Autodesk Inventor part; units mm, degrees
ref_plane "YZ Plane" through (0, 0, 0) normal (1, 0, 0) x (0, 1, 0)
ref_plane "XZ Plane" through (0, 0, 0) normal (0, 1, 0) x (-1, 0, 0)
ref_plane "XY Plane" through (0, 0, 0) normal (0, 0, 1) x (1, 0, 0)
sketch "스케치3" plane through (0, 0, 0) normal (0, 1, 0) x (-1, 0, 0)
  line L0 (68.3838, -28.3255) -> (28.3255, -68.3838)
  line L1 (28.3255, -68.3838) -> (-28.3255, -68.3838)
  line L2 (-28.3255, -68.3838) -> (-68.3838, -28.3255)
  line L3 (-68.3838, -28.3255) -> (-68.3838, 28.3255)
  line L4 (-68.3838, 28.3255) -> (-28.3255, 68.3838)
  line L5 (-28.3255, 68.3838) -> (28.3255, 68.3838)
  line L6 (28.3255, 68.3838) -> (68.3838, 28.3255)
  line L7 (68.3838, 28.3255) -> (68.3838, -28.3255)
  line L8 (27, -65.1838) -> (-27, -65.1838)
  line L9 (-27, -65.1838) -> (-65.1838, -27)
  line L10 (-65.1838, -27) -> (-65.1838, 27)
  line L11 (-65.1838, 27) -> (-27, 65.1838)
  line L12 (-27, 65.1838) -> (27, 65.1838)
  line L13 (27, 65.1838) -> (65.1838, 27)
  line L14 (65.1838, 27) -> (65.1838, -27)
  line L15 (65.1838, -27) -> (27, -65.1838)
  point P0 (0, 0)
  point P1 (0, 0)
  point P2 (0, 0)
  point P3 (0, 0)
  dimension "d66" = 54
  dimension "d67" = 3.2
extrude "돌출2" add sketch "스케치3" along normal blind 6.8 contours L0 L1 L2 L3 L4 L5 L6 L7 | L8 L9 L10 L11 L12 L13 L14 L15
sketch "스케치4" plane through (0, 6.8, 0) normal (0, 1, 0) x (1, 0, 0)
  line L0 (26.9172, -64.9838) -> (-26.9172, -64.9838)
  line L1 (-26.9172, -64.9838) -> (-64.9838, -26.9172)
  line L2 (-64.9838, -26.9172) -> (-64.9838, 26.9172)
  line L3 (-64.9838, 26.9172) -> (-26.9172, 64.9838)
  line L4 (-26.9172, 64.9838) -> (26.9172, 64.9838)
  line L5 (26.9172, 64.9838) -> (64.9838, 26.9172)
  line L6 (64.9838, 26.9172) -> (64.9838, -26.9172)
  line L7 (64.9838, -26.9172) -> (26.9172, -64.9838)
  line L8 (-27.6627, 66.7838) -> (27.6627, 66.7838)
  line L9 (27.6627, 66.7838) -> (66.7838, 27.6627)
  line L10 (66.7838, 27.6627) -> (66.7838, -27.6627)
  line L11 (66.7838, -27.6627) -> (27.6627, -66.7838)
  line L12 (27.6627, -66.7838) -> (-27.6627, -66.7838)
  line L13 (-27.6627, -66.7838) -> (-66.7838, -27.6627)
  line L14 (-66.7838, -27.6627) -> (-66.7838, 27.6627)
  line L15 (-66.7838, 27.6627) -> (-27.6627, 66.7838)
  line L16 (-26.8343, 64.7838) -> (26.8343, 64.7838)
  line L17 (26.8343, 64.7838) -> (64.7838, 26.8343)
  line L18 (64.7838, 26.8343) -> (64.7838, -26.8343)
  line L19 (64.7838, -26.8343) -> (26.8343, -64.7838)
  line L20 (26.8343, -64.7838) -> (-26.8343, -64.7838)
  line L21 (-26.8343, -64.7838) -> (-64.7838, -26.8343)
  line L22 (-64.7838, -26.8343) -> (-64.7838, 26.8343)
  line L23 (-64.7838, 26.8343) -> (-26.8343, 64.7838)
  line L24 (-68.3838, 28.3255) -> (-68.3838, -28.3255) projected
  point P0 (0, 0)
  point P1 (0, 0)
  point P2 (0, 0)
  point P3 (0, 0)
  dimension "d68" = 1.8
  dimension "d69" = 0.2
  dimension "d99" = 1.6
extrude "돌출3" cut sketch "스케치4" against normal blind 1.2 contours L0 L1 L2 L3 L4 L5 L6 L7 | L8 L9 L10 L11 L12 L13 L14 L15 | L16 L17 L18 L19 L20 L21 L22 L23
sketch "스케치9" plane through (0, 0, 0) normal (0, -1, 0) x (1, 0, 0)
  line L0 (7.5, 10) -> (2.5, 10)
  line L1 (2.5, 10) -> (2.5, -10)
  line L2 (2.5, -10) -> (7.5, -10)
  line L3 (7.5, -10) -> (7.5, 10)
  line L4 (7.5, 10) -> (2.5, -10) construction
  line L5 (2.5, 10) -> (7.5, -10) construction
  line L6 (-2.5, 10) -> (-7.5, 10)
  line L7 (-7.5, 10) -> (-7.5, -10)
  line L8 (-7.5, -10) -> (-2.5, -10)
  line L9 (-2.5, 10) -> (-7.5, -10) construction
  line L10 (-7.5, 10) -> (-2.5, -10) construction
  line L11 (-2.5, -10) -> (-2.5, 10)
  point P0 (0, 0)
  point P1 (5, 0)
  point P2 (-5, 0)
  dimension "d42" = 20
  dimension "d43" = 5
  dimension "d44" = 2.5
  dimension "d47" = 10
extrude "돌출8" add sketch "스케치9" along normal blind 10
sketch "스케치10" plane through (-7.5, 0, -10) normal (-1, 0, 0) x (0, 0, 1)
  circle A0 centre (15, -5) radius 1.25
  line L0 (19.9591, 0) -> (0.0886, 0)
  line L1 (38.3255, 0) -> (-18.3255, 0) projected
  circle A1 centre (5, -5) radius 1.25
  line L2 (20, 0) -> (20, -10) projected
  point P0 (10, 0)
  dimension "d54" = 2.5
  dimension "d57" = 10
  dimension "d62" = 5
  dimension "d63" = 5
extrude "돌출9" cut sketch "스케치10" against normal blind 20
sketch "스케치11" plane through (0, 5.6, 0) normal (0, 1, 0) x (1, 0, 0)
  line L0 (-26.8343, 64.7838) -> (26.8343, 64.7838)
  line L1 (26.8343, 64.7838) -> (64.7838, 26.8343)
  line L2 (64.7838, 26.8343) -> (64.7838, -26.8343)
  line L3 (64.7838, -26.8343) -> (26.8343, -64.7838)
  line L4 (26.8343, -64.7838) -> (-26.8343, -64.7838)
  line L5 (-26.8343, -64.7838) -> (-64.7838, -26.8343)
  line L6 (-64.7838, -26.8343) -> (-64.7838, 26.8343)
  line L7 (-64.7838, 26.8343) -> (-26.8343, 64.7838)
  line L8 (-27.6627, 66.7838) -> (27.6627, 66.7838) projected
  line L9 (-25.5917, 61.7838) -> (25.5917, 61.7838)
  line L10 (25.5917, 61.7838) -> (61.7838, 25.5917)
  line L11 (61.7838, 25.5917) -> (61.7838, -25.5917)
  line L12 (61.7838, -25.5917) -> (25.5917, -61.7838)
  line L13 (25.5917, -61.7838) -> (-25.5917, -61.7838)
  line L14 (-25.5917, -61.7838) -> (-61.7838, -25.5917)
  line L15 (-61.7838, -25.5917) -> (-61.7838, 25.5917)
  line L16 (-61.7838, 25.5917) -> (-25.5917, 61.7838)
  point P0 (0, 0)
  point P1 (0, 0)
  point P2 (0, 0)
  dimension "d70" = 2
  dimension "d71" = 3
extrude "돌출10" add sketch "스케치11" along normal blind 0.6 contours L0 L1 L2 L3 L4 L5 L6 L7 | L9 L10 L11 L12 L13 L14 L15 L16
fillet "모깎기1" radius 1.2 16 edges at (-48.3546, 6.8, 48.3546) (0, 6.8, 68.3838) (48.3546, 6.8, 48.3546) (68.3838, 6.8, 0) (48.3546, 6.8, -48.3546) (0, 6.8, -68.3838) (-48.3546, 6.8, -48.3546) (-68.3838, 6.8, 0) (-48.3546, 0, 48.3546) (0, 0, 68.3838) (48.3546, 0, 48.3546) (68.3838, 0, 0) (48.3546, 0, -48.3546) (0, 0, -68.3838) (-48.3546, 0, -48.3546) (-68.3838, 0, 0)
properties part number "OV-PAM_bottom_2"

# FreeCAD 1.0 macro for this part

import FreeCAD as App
import Part
import Sketcher


def edges_at(feature, points):
    """Names of the edges that pass closest to the given points."""
    edges = feature.Shape.Edges
    near = lambda p: min(range(len(edges)), key=lambda i: edges[i].distToShape(Part.Vertex(*p))[0])
    return sorted({f"Edge{near(p) + 1}" for p in points})

doc = App.newDocument("Part")
params = doc.addObject("Spreadsheet::Sheet", "Params")
for row, (alias, value) in enumerate([
    ("pad1_length", "6.8 mm"),
    ("pocket1_length", "1.2 mm"),
    ("sketch3_width", "5 mm"),
    ("sketch3_height", "20 mm"),
    ("pad2_length", "10 mm"),
    ("sketch4_diameter", "2.5 mm"),
    ("pocket2_length", "20 mm"),
    ("pad3_length", "0.6 mm"),
    ("fillet_radius", "1.2 mm"),
], start=1):
    params.set(f"A{row}", alias)
    params.set(f"B{row}", "=" + value)
    params.setAlias(f"B{row}", alias)

body = doc.addObject("PartDesign::Body", "Body")

# Sketch on XZ plane
sketch1 = doc.addObject("Sketcher::SketchObject", "Sketch")
body.addObject(sketch1)
sketch1.AttachmentSupport = (doc.XZ_Plane, [""])
sketch1.MapMode = "FlatFace"
sketch1.addGeometry(Part.LineSegment(App.Vector(-28, -68, 0), App.Vector(-68, -28, 0)), False)
sketch1.addGeometry(Part.LineSegment(App.Vector(-68, -28, 0), App.Vector(-68, 28, 0)), False)
sketch1.addGeometry(Part.LineSegment(App.Vector(-68, 28, 0), App.Vector(-28, 68, 0)), False)
sketch1.addGeometry(Part.LineSegment(App.Vector(-28, 68, 0), App.Vector(28, 68, 0)), False)
sketch1.addGeometry(Part.LineSegment(App.Vector(28, 68, 0), App.Vector(68, 28, 0)), False)
sketch1.addGeometry(Part.LineSegment(App.Vector(68, 28, 0), App.Vector(68, -28, 0)), False)
sketch1.addGeometry(Part.LineSegment(App.Vector(68, -28, 0), App.Vector(28, -68, 0)), False)
sketch1.addGeometry(Part.LineSegment(App.Vector(28, -68, 0), App.Vector(-28, -68, 0)), False)
sketch1.addConstraint(Sketcher.Constraint("Coincident", 0, 2, 1, 1))
sketch1.addConstraint(Sketcher.Constraint("Coincident", 1, 2, 2, 1))
sketch1.addConstraint(Sketcher.Constraint("Coincident", 2, 2, 3, 1))
sketch1.addConstraint(Sketcher.Constraint("Coincident", 3, 2, 4, 1))
sketch1.addConstraint(Sketcher.Constraint("Coincident", 4, 2, 5, 1))
sketch1.addConstraint(Sketcher.Constraint("Coincident", 5, 2, 6, 1))
sketch1.addConstraint(Sketcher.Constraint("Coincident", 6, 2, 7, 1))
sketch1.addConstraint(Sketcher.Constraint("Coincident", 7, 2, 0, 1))
sketch1.addConstraint(Sketcher.Constraint("Vertical", 1))
sketch1.addConstraint(Sketcher.Constraint("Horizontal", 3))
sketch1.addConstraint(Sketcher.Constraint("Vertical", 5))
sketch1.addConstraint(Sketcher.Constraint("Horizontal", 7))
sketch1.addConstraint(Sketcher.Constraint("Symmetric", 0, 2, 4, 2, -1, 1))
sketch1.addConstraint(Sketcher.Constraint("Symmetric", 2, 2, 6, 2, -1, 1))
sketch1.addConstraint(Sketcher.Constraint("Perpendicular", 0, 2))
sketch1.addConstraint(Sketcher.Constraint("Perpendicular", 2, 4))
sketch1.addConstraint(Sketcher.Constraint("Perpendicular", 4, 6))
sketch1.addConstraint(Sketcher.Constraint("Horizontal", 1, 2, 4, 2))
sketch1.addConstraint(Sketcher.Constraint("Vertical", 3, 2, 6, 2))
sketch1.addConstraint(Sketcher.Constraint("Equal", 7, 1))
sketch1.addConstraint(Sketcher.Constraint("DistanceX", 3, 1, 3, 2, 56.651))
sketch1.addConstraint(Sketcher.Constraint("Distance", 0, 56.651))
pad1 = doc.addObject("PartDesign::Pad", "Pad")
body.addObject(pad1)
pad1.Profile = sketch1
pad1.setExpression("Length", "Params.pad1_length")
pad1.Reversed = True

# Sketch on XZ plane
sketch2 = doc.addObject("Sketcher::SketchObject", "Sketch001")
body.addObject(sketch2)
sketch2.AttachmentSupport = (doc.XZ_Plane, [""])
sketch2.MapMode = "FlatFace"
sketch2.AttachmentOffset = App.Placement(App.Vector(0, 0, -6.8), App.Rotation())
sketch2.addGeometry(Part.LineSegment(App.Vector(28, -67, 0), App.Vector(-28, -67, 0)), False)
sketch2.addGeometry(Part.LineSegment(App.Vector(-28, -67, 0), App.Vector(-67, -28, 0)), False)
sketch2.addGeometry(Part.LineSegment(App.Vector(-67, -28, 0), App.Vector(-67, 28, 0)), False)
sketch2.addGeometry(Part.LineSegment(App.Vector(-67, 28, 0), App.Vector(-28, 67, 0)), False)
sketch2.addGeometry(Part.LineSegment(App.Vector(-28, 67, 0), App.Vector(28, 67, 0)), False)
sketch2.addGeometry(Part.LineSegment(App.Vector(28, 67, 0), App.Vector(67, 28, 0)), False)
sketch2.addGeometry(Part.LineSegment(App.Vector(67, 28, 0), App.Vector(67, -28, 0)), False)
sketch2.addGeometry(Part.LineSegment(App.Vector(67, -28, 0), App.Vector(28, -67, 0)), False)
sketch2.addConstraint(Sketcher.Constraint("Coincident", 0, 2, 1, 1))
sketch2.addConstraint(Sketcher.Constraint("Coincident", 1, 2, 2, 1))
sketch2.addConstraint(Sketcher.Constraint("Coincident", 2, 2, 3, 1))
sketch2.addConstraint(Sketcher.Constraint("Coincident", 3, 2, 4, 1))
sketch2.addConstraint(Sketcher.Constraint("Coincident", 4, 2, 5, 1))
sketch2.addConstraint(Sketcher.Constraint("Coincident", 5, 2, 6, 1))
sketch2.addConstraint(Sketcher.Constraint("Coincident", 6, 2, 7, 1))
sketch2.addConstraint(Sketcher.Constraint("Coincident", 7, 2, 0, 1))
sketch2.addConstraint(Sketcher.Constraint("Horizontal", 0))
sketch2.addConstraint(Sketcher.Constraint("Vertical", 2))
sketch2.addConstraint(Sketcher.Constraint("Horizontal", 4))
sketch2.addConstraint(Sketcher.Constraint("Vertical", 6))
sketch2.addConstraint(Sketcher.Constraint("Symmetric", 0, 2, 4, 2, -1, 1))
sketch2.addConstraint(Sketcher.Constraint("Symmetric", 1, 2, 5, 2, -1, 1))
sketch2.addConstraint(Sketcher.Constraint("Perpendicular", 1, 3))
sketch2.addConstraint(Sketcher.Constraint("Perpendicular", 5, 7))
sketch2.addConstraint(Sketcher.Constraint("Horizontal", 2, 2, 5, 2))
sketch2.addConstraint(Sketcher.Constraint("Horizontal", 1, 2, 6, 2))
sketch2.addConstraint(Sketcher.Constraint("Vertical", 0, 2, 3, 2))
sketch2.addConstraint(Sketcher.Constraint("Equal", 4, 2))
sketch2.addConstraint(Sketcher.Constraint("DistanceX", 0, 2, 0, 1, 55.3254))
sketch2.addConstraint(Sketcher.Constraint("DistanceX", 1, 2, 0, 2, 39.121))
pocket1 = doc.addObject("PartDesign::Pocket", "Pocket")
body.addObject(pocket1)
pocket1.Profile = sketch2
pocket1.setExpression("Length", "Params.pocket1_length")
pocket1.Reversed = True

# Sketch on XZ plane
sketch3 = doc.addObject("Sketcher::SketchObject", "Sketch002")
body.addObject(sketch3)
sketch3.AttachmentSupport = (doc.XZ_Plane, [""])
sketch3.MapMode = "FlatFace"
sketch3.addGeometry(Part.LineSegment(App.Vector(8, -10, 0), App.Vector(8, 10, 0)), False)
sketch3.addGeometry(Part.LineSegment(App.Vector(8, 10, 0), App.Vector(2, 10, 0)), False)
sketch3.addGeometry(Part.LineSegment(App.Vector(2, 10, 0), App.Vector(2, -10, 0)), False)
sketch3.addGeometry(Part.LineSegment(App.Vector(2, -10, 0), App.Vector(8, -10, 0)), False)
sketch3.addGeometry(Part.LineSegment(App.Vector(-2, -10, 0), App.Vector(-2, 10, 0)), False)
sketch3.addGeometry(Part.LineSegment(App.Vector(-2, 10, 0), App.Vector(-8, 10, 0)), False)
sketch3.addGeometry(Part.LineSegment(App.Vector(-8, 10, 0), App.Vector(-8, -10, 0)), False)
sketch3.addGeometry(Part.LineSegment(App.Vector(-8, -10, 0), App.Vector(-2, -10, 0)), False)
sketch3.addConstraint(Sketcher.Constraint("Coincident", 0, 2, 1, 1))
sketch3.addConstraint(Sketcher.Constraint("Coincident", 1, 2, 2, 1))
sketch3.addConstraint(Sketcher.Constraint("Coincident", 2, 2, 3, 1))
sketch3.addConstraint(Sketcher.Constraint("Coincident", 3, 2, 0, 1))
sketch3.addConstraint(Sketcher.Constraint("Coincident", 4, 2, 5, 1))
sketch3.addConstraint(Sketcher.Constraint("Coincident", 5, 2, 6, 1))
sketch3.addConstraint(Sketcher.Constraint("Coincident", 6, 2, 7, 1))
sketch3.addConstraint(Sketcher.Constraint("Coincident", 7, 2, 4, 1))
sketch3.addConstraint(Sketcher.Constraint("Vertical", 0))
sketch3.addConstraint(Sketcher.Constraint("Horizontal", 1))
sketch3.addConstraint(Sketcher.Constraint("Vertical", 2))
sketch3.addConstraint(Sketcher.Constraint("Horizontal", 3))
sketch3.addConstraint(Sketcher.Constraint("Vertical", 4))
sketch3.addConstraint(Sketcher.Constraint("Horizontal", 5))
sketch3.addConstraint(Sketcher.Constraint("Vertical", 6))
sketch3.addConstraint(Sketcher.Constraint("Horizontal", 7))
sketch3.addConstraint(Sketcher.Constraint("Symmetric", 2, 2, 4, 2, -1, 1))
sketch3.addConstraint(Sketcher.Constraint("Symmetric", 0, 2, 6, 2, -1, 1))
sketch3.addConstraint(Sketcher.Constraint("Horizontal", 1, 2, 4, 2))
sketch3.addConstraint(Sketcher.Constraint("DistanceX", 1, 2, 1, 1, 5.0))
sketch3.addConstraint(Sketcher.Constraint("DistanceY", 0, 1, 0, 2, 20.0))
sketch3.addConstraint(Sketcher.Constraint("DistanceX", 4, 2, 1, 2, 5.0))
sketch3.setExpression("Constraints[19]", "Params.sketch3_width")
sketch3.setExpression("Constraints[20]", "Params.sketch3_height")
pad2 = doc.addObject("PartDesign::Pad", "Pad001")
body.addObject(pad2)
pad2.Profile = sketch3
pad2.setExpression("Length", "Params.pad2_length")

# Sketch on YZ plane
sketch4 = doc.addObject("Sketcher::SketchObject", "Sketch003")
body.addObject(sketch4)
sketch4.AttachmentSupport = (doc.YZ_Plane, [""])
sketch4.MapMode = "FlatFace"
sketch4.AttachmentOffset = App.Placement(App.Vector(0, 0, -7.5), App.Rotation())
sketch4.addGeometry(Part.Circle(App.Vector(-5, 5, 0), App.Vector(0, 0, 1), 1.2), False)
sketch4.addGeometry(Part.Circle(App.Vector(-5, -5, 0), App.Vector(0, 0, 1), 1.2), False)
sketch4.addConstraint(Sketcher.Constraint("Equal", 0, 1))
sketch4.addConstraint(Sketcher.Constraint("Symmetric", 0, 3, 1, 3, -1))
sketch4.addConstraint(Sketcher.Constraint("Diameter", 0, 2.5))
sketch4.addConstraint(Sketcher.Constraint("DistanceX", 0, 3, -1, 1, 5.0))
sketch4.addConstraint(Sketcher.Constraint("DistanceY", -1, 1, 0, 3, 5.0))
sketch4.setExpression("Constraints[2]", "Params.sketch4_diameter")
pocket2 = doc.addObject("PartDesign::Pocket", "Pocket001")
body.addObject(pocket2)
pocket2.Profile = sketch4
pocket2.setExpression("Length", "Params.pocket2_length")
pocket2.Reversed = True

# Sketch on XZ plane
sketch5 = doc.addObject("Sketcher::SketchObject", "Sketch004")
body.addObject(sketch5)
sketch5.AttachmentSupport = (doc.XZ_Plane, [""])
sketch5.MapMode = "FlatFace"
sketch5.AttachmentOffset = App.Placement(App.Vector(0, 0, -5.6), App.Rotation())
sketch5.addGeometry(Part.LineSegment(App.Vector(27, -65, 0), App.Vector(-27, -65, 0)), False)
sketch5.addGeometry(Part.LineSegment(App.Vector(-27, -65, 0), App.Vector(-65, -27, 0)), False)
sketch5.addGeometry(Part.LineSegment(App.Vector(-65, -27, 0), App.Vector(-65, 27, 0)), False)
sketch5.addGeometry(Part.LineSegment(App.Vector(-65, 27, 0), App.Vector(-27, 65, 0)), False)
sketch5.addGeometry(Part.LineSegment(App.Vector(-27, 65, 0), App.Vector(27, 65, 0)), False)
sketch5.addGeometry(Part.LineSegment(App.Vector(27, 65, 0), App.Vector(65, 27, 0)), False)
sketch5.addGeometry(Part.LineSegment(App.Vector(65, 27, 0), App.Vector(65, -27, 0)), False)
sketch5.addGeometry(Part.LineSegment(App.Vector(65, -27, 0), App.Vector(27, -65, 0)), False)
sketch5.addConstraint(Sketcher.Constraint("Coincident", 0, 2, 1, 1))
sketch5.addConstraint(Sketcher.Constraint("Coincident", 1, 2, 2, 1))
sketch5.addConstraint(Sketcher.Constraint("Coincident", 2, 2, 3, 1))
sketch5.addConstraint(Sketcher.Constraint("Coincident", 3, 2, 4, 1))
sketch5.addConstraint(Sketcher.Constraint("Coincident", 4, 2, 5, 1))
sketch5.addConstraint(Sketcher.Constraint("Coincident", 5, 2, 6, 1))
sketch5.addConstraint(Sketcher.Constraint("Coincident", 6, 2, 7, 1))
sketch5.addConstraint(Sketcher.Constraint("Coincident", 7, 2, 0, 1))
sketch5.addConstraint(Sketcher.Constraint("Horizontal", 0))
sketch5.addConstraint(Sketcher.Constraint("Vertical", 2))
sketch5.addConstraint(Sketcher.Constraint("Horizontal", 4))
sketch5.addConstraint(Sketcher.Constraint("Vertical", 6))
sketch5.addConstraint(Sketcher.Constraint("Symmetric", 0, 2, 4, 2, -1, 1))
sketch5.addConstraint(Sketcher.Constraint("Symmetric", 1, 2, 5, 2, -1, 1))
sketch5.addConstraint(Sketcher.Constraint("Perpendicular", 1, 3))
sketch5.addConstraint(Sketcher.Constraint("Perpendicular", 5, 7))
sketch5.addConstraint(Sketcher.Constraint("Horizontal", 2, 2, 5, 2))
sketch5.addConstraint(Sketcher.Constraint("Horizontal", 1, 2, 6, 2))
sketch5.addConstraint(Sketcher.Constraint("Vertical", 0, 2, 3, 2))
sketch5.addConstraint(Sketcher.Constraint("Equal", 4, 2))
sketch5.addConstraint(Sketcher.Constraint("DistanceX", 0, 2, 0, 1, 53.6686))
sketch5.addConstraint(Sketcher.Constraint("DistanceY", 0, 2, 2, 2, 91.618))
pad3 = doc.addObject("PartDesign::Pad", "Pad002")
body.addObject(pad3)
pad3.Profile = sketch5
pad3.setExpression("Length", "Params.pad3_length")
pad3.Reversed = True
doc.recompute()

fillet = doc.addObject("PartDesign::Fillet", "Fillet")
body.addObject(fillet)
fillet.Base = (pad3, edges_at(pad3, [
    (-48.355, 6.8, 48.355),
    (0, 6.8, 68.384),
    (48.355, 6.8, 48.355),
    (68.384, 6.8, 0),
    (48.355, 6.8, -48.355),
    (0, 6.8, -68.384),
    (-48.355, 6.8, -48.355),
    (-68.384, 6.8, 0),
    (-48.355, 0, 48.355),
    (0, 0, 68.384),
    (48.355, 0, 48.355),
    (68.384, 0, 0),
    (48.355, 0, -48.355),
    (0, 0, -68.384),
    (-48.355, 0, -48.355),
    (-68.384, 0, 0),
]))
fillet.setExpression("Radius", "Params.fillet_radius")

doc.recompute()
